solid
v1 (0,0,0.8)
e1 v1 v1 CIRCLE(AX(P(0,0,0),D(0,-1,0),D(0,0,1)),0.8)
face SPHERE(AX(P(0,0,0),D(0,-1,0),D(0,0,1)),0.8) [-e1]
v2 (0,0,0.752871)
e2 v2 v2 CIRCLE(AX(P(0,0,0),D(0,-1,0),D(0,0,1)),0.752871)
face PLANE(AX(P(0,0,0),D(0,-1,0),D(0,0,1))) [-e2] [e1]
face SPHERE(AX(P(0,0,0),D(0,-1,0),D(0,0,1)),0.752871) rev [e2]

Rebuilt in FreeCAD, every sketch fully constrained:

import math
import FreeCAD as App
import Part
import Sketcher
from FreeCAD import Vector
Q = App.Units.Quantity

doc = App.newDocument("Part")
body = doc.addObject("PartDesign::Body", "Body")

sketch1 = body.newObject("Sketcher::SketchObject", "Sketch")
sketch1.AttachmentSupport = (doc.getObject("XZ_Plane"), [""])
sketch1.MapMode = "FlatFace"
sketch1.addGeometry(Part.LineSegment(Vector(0, -0.8, 0), Vector(0, -0.753, 0)), False)
sketch1.addGeometry(Part.ArcOfCircle(Part.Circle(Vector(0, 0, 0), Vector(0, 0, 1), 0.753), math.radians(-90), math.radians(90)), False)
sketch1.addGeometry(Part.LineSegment(Vector(0, 0.753, 0), Vector(0, 0.8, 0)), False)
sketch1.addGeometry(Part.ArcOfCircle(Part.Circle(Vector(0, 0, 0), Vector(0, 0, 1), 0.8), math.radians(-90), math.radians(90)), False)
sketch1.addConstraint(Sketcher.Constraint("Coincident", 0, 2, 1, 1))
sketch1.addConstraint(Sketcher.Constraint("Coincident", 1, 2, 2, 1))
sketch1.addConstraint(Sketcher.Constraint("Coincident", 2, 2, 3, 2))
sketch1.addConstraint(Sketcher.Constraint("Coincident", 3, 1, 0, 1))
sketch1.addConstraint(Sketcher.Constraint("Vertical", 0))
sketch1.addConstraint(Sketcher.Constraint("Vertical", 2))
sketch1.addConstraint(Sketcher.Constraint("Coincident", 1, 3, -1, 1))
sketch1.addConstraint(Sketcher.Constraint("Coincident", 3, 3, -1, 1))
sketch1.addConstraint(Sketcher.Constraint("PointOnObject", 0, 2, -2))
sketch1.addConstraint(Sketcher.Constraint("PointOnObject", 1, 2, -2))
sketch1.addConstraint(Sketcher.Constraint("Radius", 3, Q("0.8 mm")))
sketch1.addConstraint(Sketcher.Constraint("Radius", 1, Q("0.752871 mm")))
revolution = body.newObject("PartDesign::Revolution", "Revolution")
revolution.Profile = sketch1
revolution.ReferenceAxis = (sketch1, ["V_Axis"])
revolution.Angle = 180

doc.recompute()
